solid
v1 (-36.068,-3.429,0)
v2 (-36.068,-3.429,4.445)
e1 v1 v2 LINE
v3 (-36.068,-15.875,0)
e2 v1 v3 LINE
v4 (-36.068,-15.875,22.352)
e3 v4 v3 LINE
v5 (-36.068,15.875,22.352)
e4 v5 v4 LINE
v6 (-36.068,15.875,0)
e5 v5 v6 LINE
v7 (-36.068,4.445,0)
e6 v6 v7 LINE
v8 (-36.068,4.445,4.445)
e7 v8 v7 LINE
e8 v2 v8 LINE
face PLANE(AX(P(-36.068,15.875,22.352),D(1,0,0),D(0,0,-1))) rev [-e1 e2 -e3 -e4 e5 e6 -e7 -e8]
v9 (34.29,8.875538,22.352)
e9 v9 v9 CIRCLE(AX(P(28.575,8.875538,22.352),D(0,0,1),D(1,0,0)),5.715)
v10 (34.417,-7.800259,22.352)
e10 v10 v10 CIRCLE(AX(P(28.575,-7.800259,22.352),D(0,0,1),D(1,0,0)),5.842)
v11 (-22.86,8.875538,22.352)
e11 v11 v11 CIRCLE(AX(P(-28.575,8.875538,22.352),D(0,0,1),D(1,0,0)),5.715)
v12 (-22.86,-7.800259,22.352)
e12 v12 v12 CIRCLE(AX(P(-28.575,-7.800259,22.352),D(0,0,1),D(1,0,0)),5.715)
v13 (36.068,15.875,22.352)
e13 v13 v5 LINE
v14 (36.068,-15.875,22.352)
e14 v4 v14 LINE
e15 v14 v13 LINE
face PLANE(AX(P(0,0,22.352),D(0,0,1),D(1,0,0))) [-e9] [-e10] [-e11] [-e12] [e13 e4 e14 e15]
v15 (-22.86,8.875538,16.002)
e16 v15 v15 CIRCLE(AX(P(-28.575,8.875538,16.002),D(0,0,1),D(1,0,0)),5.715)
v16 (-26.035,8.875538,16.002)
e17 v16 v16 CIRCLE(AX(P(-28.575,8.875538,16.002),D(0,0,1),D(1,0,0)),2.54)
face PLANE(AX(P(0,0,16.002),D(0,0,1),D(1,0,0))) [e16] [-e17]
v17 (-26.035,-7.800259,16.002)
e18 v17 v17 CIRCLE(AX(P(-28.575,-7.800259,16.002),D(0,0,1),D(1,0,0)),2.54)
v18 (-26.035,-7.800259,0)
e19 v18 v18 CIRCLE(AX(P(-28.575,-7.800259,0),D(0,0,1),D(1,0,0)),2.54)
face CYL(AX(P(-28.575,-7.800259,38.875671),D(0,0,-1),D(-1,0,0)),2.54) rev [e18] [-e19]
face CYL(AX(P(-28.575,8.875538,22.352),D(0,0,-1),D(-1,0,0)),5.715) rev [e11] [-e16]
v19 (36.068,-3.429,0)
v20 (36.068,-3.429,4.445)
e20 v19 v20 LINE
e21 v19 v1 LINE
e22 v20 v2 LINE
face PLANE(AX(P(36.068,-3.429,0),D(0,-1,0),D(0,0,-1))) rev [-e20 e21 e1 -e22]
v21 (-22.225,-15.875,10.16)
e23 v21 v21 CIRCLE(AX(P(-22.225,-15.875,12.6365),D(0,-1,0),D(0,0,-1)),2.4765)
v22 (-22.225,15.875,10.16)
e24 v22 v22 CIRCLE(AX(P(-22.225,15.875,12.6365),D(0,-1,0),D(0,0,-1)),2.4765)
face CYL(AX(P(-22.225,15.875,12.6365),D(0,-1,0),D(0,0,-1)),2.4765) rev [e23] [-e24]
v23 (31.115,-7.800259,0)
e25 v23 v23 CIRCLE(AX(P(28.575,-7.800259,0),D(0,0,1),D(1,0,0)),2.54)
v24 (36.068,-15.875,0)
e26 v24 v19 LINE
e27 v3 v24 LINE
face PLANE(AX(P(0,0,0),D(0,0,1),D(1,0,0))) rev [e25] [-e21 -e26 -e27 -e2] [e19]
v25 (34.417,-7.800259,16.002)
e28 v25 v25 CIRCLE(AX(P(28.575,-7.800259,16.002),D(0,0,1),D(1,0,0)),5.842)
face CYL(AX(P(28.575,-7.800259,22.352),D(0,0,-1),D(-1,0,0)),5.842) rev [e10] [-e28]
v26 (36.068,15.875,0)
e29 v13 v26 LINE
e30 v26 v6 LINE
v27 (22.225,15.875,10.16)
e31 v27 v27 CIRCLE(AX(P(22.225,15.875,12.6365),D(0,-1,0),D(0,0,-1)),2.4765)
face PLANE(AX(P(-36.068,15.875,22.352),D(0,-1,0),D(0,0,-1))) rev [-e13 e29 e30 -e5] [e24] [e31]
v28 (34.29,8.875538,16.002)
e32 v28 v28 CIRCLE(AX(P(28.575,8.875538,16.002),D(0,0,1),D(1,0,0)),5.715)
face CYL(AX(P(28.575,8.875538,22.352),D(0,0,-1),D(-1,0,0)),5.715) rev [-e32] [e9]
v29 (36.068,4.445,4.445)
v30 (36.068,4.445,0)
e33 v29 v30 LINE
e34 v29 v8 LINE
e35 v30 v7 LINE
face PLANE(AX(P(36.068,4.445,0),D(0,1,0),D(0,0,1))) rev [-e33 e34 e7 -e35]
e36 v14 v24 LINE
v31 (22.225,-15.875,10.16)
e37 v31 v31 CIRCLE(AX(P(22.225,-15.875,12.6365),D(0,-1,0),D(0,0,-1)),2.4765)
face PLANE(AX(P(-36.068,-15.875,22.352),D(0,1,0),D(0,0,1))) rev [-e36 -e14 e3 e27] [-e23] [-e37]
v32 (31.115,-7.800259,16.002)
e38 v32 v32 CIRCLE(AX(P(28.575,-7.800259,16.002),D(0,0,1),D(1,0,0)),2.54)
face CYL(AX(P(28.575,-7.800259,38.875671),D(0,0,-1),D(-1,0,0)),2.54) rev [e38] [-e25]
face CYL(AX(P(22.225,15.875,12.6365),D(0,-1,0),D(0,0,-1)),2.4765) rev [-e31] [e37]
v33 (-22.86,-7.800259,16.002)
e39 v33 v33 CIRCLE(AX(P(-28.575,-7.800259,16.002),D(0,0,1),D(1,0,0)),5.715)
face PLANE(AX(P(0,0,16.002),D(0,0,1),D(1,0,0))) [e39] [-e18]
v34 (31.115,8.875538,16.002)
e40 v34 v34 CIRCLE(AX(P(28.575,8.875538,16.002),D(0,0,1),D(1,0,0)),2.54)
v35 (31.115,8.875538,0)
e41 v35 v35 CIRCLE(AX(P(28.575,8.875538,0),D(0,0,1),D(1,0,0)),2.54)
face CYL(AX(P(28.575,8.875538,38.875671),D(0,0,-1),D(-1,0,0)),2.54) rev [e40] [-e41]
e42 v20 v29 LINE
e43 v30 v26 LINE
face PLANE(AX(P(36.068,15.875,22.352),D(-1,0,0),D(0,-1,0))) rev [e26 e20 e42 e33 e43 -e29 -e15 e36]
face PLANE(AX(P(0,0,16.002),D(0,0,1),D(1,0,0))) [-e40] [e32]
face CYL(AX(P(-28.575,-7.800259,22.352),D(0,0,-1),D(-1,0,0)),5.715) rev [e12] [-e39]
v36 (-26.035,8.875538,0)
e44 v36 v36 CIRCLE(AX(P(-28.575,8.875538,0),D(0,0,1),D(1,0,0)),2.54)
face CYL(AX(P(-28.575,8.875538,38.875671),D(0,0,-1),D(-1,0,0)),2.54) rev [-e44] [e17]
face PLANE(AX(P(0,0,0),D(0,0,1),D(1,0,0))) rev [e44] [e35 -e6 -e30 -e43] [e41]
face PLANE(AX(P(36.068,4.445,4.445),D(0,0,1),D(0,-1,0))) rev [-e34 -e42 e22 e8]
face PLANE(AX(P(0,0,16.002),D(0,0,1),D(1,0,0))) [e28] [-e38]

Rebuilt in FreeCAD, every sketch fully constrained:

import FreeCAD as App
import Part
import Sketcher

V = App.Vector
Q = App.Units.Quantity

doc = App.newDocument("Part")
params = doc.addObject("Spreadsheet::Sheet", "Params")
for row, (alias, value) in enumerate([
    ("sketch1_diameter", "0.45 in"),
    ("sketch1_diameter2", "0.46 in"),
    ("sketch1_width", "2.84 in"),
    ("sketch1_height", "1.25 in"),
    ("pad1_length", "0.88 in"),
    ("sketch2_diameter", "0.2 in"),
    ("sketch2_diameter2", "0.45 in"),
    ("sketch2_diameter3", "0.46 in"),
    ("pad2_length", "0.63 in"),
    ("sketch3_diameter", "0.195 in"),
    ("sketch4_width", "0.31 in"),
    ("sketch4_height", "0.175 in"),
], start=1):
    params.set(f"A{row}", alias)
    params.set(f"B{row}", "=" + value)
    params.setAlias(f"B{row}", alias)

body = doc.addObject("PartDesign::Body", "Body")

sketch1 = body.newObject("Sketcher::SketchObject", "Sketch")
sketch1.AttachmentSupport = (doc.getObject("XY_Plane"), [""])
sketch1.MapMode = "FlatFace"
sketch1.addGeometry([
    Part.LineSegment(V(-36, 16, 0), V(-36, -16, 0)),
    Part.LineSegment(V(-36, -16, 0), V(36, -16, 0)),
    Part.LineSegment(V(36, -16, 0), V(36, 16, 0)),
    Part.LineSegment(V(36, 16, 0), V(-36, 16, 0)),
    Part.Circle(V(-29, -8, 0), V(0, 0, 1), 6),
    Part.Circle(V(29, -8, 0), V(0, 0, 1), 6),
    Part.Circle(V(-29, 9, 0), V(0, 0, 1), 6),
    Part.Circle(V(29, 9, 0), V(0, 0, 1), 6),
], False)
sketch1.addConstraint([
    Sketcher.Constraint("Coincident", 0, 2, 1, 1),
    Sketcher.Constraint("Coincident", 1, 2, 2, 1),
    Sketcher.Constraint("Coincident", 2, 2, 3, 1),
    Sketcher.Constraint("Coincident", 3, 2, 0, 1),
    Sketcher.Constraint("Vertical", 0),
    Sketcher.Constraint("Horizontal", 1),
    Sketcher.Constraint("Vertical", 2),
    Sketcher.Constraint("Horizontal", 3),
    Sketcher.Constraint("Equal", 4, 6),
    Sketcher.Constraint("Equal", 6, 7),
    Sketcher.Constraint("Symmetric", 0, 2, 2, 2, -1, 1),
    Sketcher.Constraint("Symmetric", 4, 3, 5, 3, -2),
    Sketcher.Constraint("Symmetric", 6, 3, 7, 3, -2),
    Sketcher.Constraint("Vertical", 4, 3, 6, 3),
    Sketcher.Constraint("Diameter", 4, Q("0.45 in")),
    Sketcher.Constraint("Diameter", 5, Q("0.46 in")),
    Sketcher.Constraint("DistanceX", 1, 1, 1, 2, Q("2.84 in")),
    Sketcher.Constraint("DistanceY", 0, 2, 0, 1, Q("1.25 in")),
    Sketcher.Constraint("DistanceX", 4, 3, 5, 3, Q("2.25 in")),
    Sketcher.Constraint("DistanceY", 4, 3, -1, 1, 7.80026),
    Sketcher.Constraint("DistanceY", -1, 1, 6, 3, 8.875538),
])
sketch1.setExpression("Constraints[14]", "Params.sketch1_diameter")
sketch1.setExpression("Constraints[15]", "Params.sketch1_diameter2")
sketch1.setExpression("Constraints[16]", "Params.sketch1_width")
sketch1.setExpression("Constraints[17]", "Params.sketch1_height")
pad1 = body.newObject("PartDesign::Pad", "Pad")
pad1.Profile = sketch1
pad1.setExpression("Length", "Params.pad1_length")

sketch2 = body.newObject("Sketcher::SketchObject", "Sketch001")
sketch2.AttachmentSupport = (doc.getObject("XY_Plane"), [""])
sketch2.MapMode = "FlatFace"
sketch2.addGeometry([
    Part.Circle(V(-28.6, 8.9, 0), V(0, 0, 1), 5.7),
    Part.Circle(V(-28.6, 8.9, 0), V(0, 0, 1), 2.5),
    Part.Circle(V(-28.6, -7.8, 0), V(0, 0, 1), 5.7),
    Part.Circle(V(-28.6, -7.8, 0), V(0, 0, 1), 2.5),
    Part.Circle(V(28.6, 8.9, 0), V(0, 0, 1), 5.7),
    Part.Circle(V(28.6, 8.9, 0), V(0, 0, 1), 2.5),
    Part.Circle(V(28.6, -7.8, 0), V(0, 0, 1), 5.8),
    Part.Circle(V(28.6, -7.8, 0), V(0, 0, 1), 2.5),
], False)
sketch2.addConstraint([
    Sketcher.Constraint("Coincident", 1, 3, 0, 3),
    Sketcher.Constraint("Coincident", 3, 3, 2, 3),
    Sketcher.Constraint("Coincident", 5, 3, 4, 3),
    Sketcher.Constraint("Coincident", 7, 3, 6, 3),
    Sketcher.Constraint("Equal", 0, 2),
    Sketcher.Constraint("Equal", 1, 3),
    Sketcher.Constraint("Equal", 2, 4),
    Sketcher.Constraint("Equal", 3, 5),
    Sketcher.Constraint("Equal", 5, 7),
    Sketcher.Constraint("Symmetric", 0, 3, 4, 3, -2),
    Sketcher.Constraint("Symmetric", 2, 3, 6, 3, -2),
    Sketcher.Constraint("Vertical", 1, 3, 2, 3),
    Sketcher.Constraint("Diameter", 1, Q("0.2 in")),
    Sketcher.Constraint("Diameter", 0, Q("0.45 in")),
    Sketcher.Constraint("Diameter", 6, Q("0.46 in")),
    Sketcher.Constraint("DistanceX", 0, 3, 4, 3, Q("2.25 in")),
    Sketcher.Constraint("DistanceY", 2, 3, -1, 1, 7.80026),
    Sketcher.Constraint("DistanceY", -1, 1, 0, 3, 8.875538),
])
sketch2.setExpression("Constraints[12]", "Params.sketch2_diameter")
sketch2.setExpression("Constraints[13]", "Params.sketch2_diameter2")
sketch2.setExpression("Constraints[14]", "Params.sketch2_diameter3")
pad2 = body.newObject("PartDesign::Pad", "Pad001")
pad2.Profile = sketch2
pad2.setExpression("Length", "Params.pad2_length")

sketch3 = body.newObject("Sketcher::SketchObject", "Sketch002")
sketch3.AttachmentSupport = (doc.getObject("XZ_Plane"), [""])
sketch3.MapMode = "FlatFace"
sketch3.AttachmentOffset = App.Placement(V(0, 0, 0.625 * 25.4), App.Rotation())
sketch3.addGeometry([
    Part.Circle(V(-22.2, 12.6, 0), V(0, 0, 1), 2.5),
    Part.Circle(V(22.2, 12.6, 0), V(0, 0, 1), 2.5),
], False)
sketch3.addConstraint([
    Sketcher.Constraint("Equal", 0, 1),
    Sketcher.Constraint("Symmetric", 0, 3, 1, 3, -2),
    Sketcher.Constraint("Diameter", 0, Q("0.195 in")),
    Sketcher.Constraint("DistanceX", 0, 3, 1, 3, Q("1.75 in")),
    Sketcher.Constraint("DistanceY", -1, 1, 0, 3, Q("0.4975 in")),
])
sketch3.setExpression("Constraints[2]", "Params.sketch3_diameter")
pocket1 = body.newObject("PartDesign::Pocket", "Pocket")
pocket1.Profile = sketch3
pocket1.Type = "ThroughAll"

sketch4 = body.newObject("Sketcher::SketchObject", "Sketch003")
sketch4.AttachmentSupport = (doc.getObject("YZ_Plane"), [""])
sketch4.MapMode = "FlatFace"
sketch4.AttachmentOffset = App.Placement(V(0, 0, -1.42 * 25.4), App.Rotation())
sketch4.addGeometry([
    Part.LineSegment(V(4.4, 0, 0), V(-3.4, 0, 0)),
    Part.LineSegment(V(-3.4, 0, 0), V(-3.4, 4.4, 0)),
    Part.LineSegment(V(-3.4, 4.4, 0), V(4.4, 4.4, 0)),
    Part.LineSegment(V(4.4, 4.4, 0), V(4.4, 0, 0)),
], False)
sketch4.addConstraint([
    Sketcher.Constraint("Coincident", 0, 2, 1, 1),
    Sketcher.Constraint("Coincident", 1, 2, 2, 1),
    Sketcher.Constraint("Coincident", 2, 2, 3, 1),
    Sketcher.Constraint("Coincident", 3, 2, 0, 1),
    Sketcher.Constraint("Horizontal", 0),
    Sketcher.Constraint("Vertical", 1),
    Sketcher.Constraint("Horizontal", 2),
    Sketcher.Constraint("Vertical", 3),
    Sketcher.Constraint("PointOnObject", 0, 2, -1),
    Sketcher.Constraint("DistanceX", 0, 2, 0, 1, Q("0.31 in")),
    Sketcher.Constraint("DistanceY", 1, 1, 1, 2, Q("0.175 in")),
    Sketcher.Constraint("DistanceX", 0, 2, -1, 1, Q("0.135 in")),
])
sketch4.setExpression("Constraints[9]", "Params.sketch4_width")
sketch4.setExpression("Constraints[10]", "Params.sketch4_height")
pocket2 = body.newObject("PartDesign::Pocket", "Pocket001")
pocket2.Profile = sketch4
pocket2.Type = "ThroughAll"
pocket2.Reversed = True

doc.recompute()
